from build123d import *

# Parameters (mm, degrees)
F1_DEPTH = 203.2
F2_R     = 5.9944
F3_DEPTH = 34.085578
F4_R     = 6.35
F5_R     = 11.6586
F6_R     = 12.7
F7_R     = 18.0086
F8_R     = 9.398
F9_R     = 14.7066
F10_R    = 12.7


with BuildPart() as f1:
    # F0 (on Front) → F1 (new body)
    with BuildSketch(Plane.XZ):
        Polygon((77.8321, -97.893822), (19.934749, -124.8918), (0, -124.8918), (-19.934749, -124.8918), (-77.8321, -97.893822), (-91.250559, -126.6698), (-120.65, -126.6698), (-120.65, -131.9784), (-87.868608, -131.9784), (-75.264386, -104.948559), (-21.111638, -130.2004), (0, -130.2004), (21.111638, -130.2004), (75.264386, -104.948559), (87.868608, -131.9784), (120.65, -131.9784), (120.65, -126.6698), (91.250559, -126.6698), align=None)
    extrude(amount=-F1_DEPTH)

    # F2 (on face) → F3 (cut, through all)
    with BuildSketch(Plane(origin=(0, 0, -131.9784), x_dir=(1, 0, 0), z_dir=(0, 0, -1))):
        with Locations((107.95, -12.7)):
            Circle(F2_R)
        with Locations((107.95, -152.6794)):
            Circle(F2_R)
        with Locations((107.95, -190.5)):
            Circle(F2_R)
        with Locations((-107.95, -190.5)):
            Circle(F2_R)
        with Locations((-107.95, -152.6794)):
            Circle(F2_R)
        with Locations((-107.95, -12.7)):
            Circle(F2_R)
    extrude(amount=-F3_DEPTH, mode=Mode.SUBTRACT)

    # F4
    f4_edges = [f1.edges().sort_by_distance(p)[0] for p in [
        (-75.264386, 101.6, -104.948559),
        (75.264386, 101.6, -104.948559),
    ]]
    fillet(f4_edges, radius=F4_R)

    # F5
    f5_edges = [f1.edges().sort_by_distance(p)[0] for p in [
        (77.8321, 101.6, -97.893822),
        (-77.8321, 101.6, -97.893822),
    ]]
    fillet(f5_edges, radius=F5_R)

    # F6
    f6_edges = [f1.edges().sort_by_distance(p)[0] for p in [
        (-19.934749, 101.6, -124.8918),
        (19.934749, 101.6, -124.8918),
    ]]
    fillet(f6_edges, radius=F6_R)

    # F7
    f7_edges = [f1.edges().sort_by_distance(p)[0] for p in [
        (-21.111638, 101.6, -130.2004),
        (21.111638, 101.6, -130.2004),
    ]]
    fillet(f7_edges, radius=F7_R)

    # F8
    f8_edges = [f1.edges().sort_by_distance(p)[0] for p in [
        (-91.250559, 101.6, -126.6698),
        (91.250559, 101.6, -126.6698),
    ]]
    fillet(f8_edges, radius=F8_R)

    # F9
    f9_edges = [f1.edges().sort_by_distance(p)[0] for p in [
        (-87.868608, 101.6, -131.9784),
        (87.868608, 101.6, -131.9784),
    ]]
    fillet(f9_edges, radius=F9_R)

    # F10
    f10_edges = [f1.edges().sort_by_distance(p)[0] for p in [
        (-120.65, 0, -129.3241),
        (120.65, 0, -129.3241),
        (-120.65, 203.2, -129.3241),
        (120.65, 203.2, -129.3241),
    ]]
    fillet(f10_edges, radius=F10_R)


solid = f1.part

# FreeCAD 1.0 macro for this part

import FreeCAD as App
import Part
import Sketcher
Q = App.Units.Quantity


def edges_at(feature, points):
    """Names of the edges that pass closest to the given points."""
    edges = feature.Shape.Edges
    near = lambda p: min(range(len(edges)), key=lambda i: edges[i].distToShape(Part.Vertex(*p))[0])
    return sorted({f"Edge{near(p) + 1}" for p in points})

doc = App.newDocument("Part")
body = doc.addObject("PartDesign::Body", "Body")

sketch1 = body.newObject("Sketcher::SketchObject", "Sketch")
sketch1.AttachmentSupport = (doc.getObject("XZ_Plane"), [""])
sketch1.MapMode = "FlatFace"
sketch1.addGeometry(Part.LineSegment(App.Vector(78, -98, 0), App.Vector(20, -125, 0)), False)
sketch1.addGeometry(Part.LineSegment(App.Vector(20, -125, 0), App.Vector(-20, -125, 0)), False)
sketch1.addGeometry(Part.LineSegment(App.Vector(-20, -125, 0), App.Vector(-78, -98, 0)), False)
sketch1.addGeometry(Part.LineSegment(App.Vector(-78, -98, 0), App.Vector(-91, -127, 0)), False)
sketch1.addGeometry(Part.LineSegment(App.Vector(-91, -127, 0), App.Vector(-121, -127, 0)), False)
sketch1.addGeometry(Part.LineSegment(App.Vector(-121, -127, 0), App.Vector(-121, -132, 0)), False)
sketch1.addGeometry(Part.LineSegment(App.Vector(-121, -132, 0), App.Vector(-88, -132, 0)), False)
sketch1.addGeometry(Part.LineSegment(App.Vector(-88, -132, 0), App.Vector(-75, -105, 0)), False)
sketch1.addGeometry(Part.LineSegment(App.Vector(-75, -105, 0), App.Vector(-21, -130, 0)), False)
sketch1.addGeometry(Part.LineSegment(App.Vector(-21, -130, 0), App.Vector(21, -130, 0)), False)
sketch1.addGeometry(Part.LineSegment(App.Vector(21, -130, 0), App.Vector(75, -105, 0)), False)
sketch1.addGeometry(Part.LineSegment(App.Vector(75, -105, 0), App.Vector(88, -132, 0)), False)
sketch1.addGeometry(Part.LineSegment(App.Vector(88, -132, 0), App.Vector(121, -132, 0)), False)
sketch1.addGeometry(Part.LineSegment(App.Vector(121, -132, 0), App.Vector(121, -127, 0)), False)
sketch1.addGeometry(Part.LineSegment(App.Vector(121, -127, 0), App.Vector(91, -127, 0)), False)
sketch1.addGeometry(Part.LineSegment(App.Vector(91, -127, 0), App.Vector(78, -98, 0)), False)
sketch1.addConstraint(Sketcher.Constraint("Coincident", 0, 2, 1, 1))
sketch1.addConstraint(Sketcher.Constraint("Coincident", 1, 2, 2, 1))
sketch1.addConstraint(Sketcher.Constraint("Coincident", 2, 2, 3, 1))
sketch1.addConstraint(Sketcher.Constraint("Coincident", 3, 2, 4, 1))
sketch1.addConstraint(Sketcher.Constraint("Coincident", 4, 2, 5, 1))
sketch1.addConstraint(Sketcher.Constraint("Coincident", 5, 2, 6, 1))
sketch1.addConstraint(Sketcher.Constraint("Coincident", 6, 2, 7, 1))
sketch1.addConstraint(Sketcher.Constraint("Coincident", 7, 2, 8, 1))
sketch1.addConstraint(Sketcher.Constraint("Coincident", 8, 2, 9, 1))
sketch1.addConstraint(Sketcher.Constraint("Coincident", 9, 2, 10, 1))
sketch1.addConstraint(Sketcher.Constraint("Coincident", 10, 2, 11, 1))
sketch1.addConstraint(Sketcher.Constraint("Coincident", 11, 2, 12, 1))
sketch1.addConstraint(Sketcher.Constraint("Coincident", 12, 2, 13, 1))
sketch1.addConstraint(Sketcher.Constraint("Coincident", 13, 2, 14, 1))
sketch1.addConstraint(Sketcher.Constraint("Coincident", 14, 2, 15, 1))
sketch1.addConstraint(Sketcher.Constraint("Coincident", 15, 2, 0, 1))
sketch1.addConstraint(Sketcher.Constraint("Horizontal", 1))
sketch1.addConstraint(Sketcher.Constraint("Horizontal", 4))
sketch1.addConstraint(Sketcher.Constraint("Vertical", 5))
sketch1.addConstraint(Sketcher.Constraint("Horizontal", 6))
sketch1.addConstraint(Sketcher.Constraint("Horizontal", 9))
sketch1.addConstraint(Sketcher.Constraint("Horizontal", 12))
sketch1.addConstraint(Sketcher.Constraint("Vertical", 13))
sketch1.addConstraint(Sketcher.Constraint("Horizontal", 14))
sketch1.addConstraint(Sketcher.Constraint("Symmetric", 7, 2, 10, 2, -2))
sketch1.addConstraint(Sketcher.Constraint("Symmetric", 6, 2, 11, 2, -2))
sketch1.addConstraint(Sketcher.Constraint("Symmetric", 4, 2, 13, 2, -2))
sketch1.addConstraint(Sketcher.Constraint("Symmetric", 2, 2, 15, 2, -2))
sketch1.addConstraint(Sketcher.Constraint("Perpendicular", 2, 3))
sketch1.addConstraint(Sketcher.Constraint("Parallel", 3, 7))
sketch1.addConstraint(Sketcher.Constraint("Perpendicular", 7, 8))
sketch1.addConstraint(Sketcher.Constraint("Parallel", 0, 10))
sketch1.addConstraint(Sketcher.Constraint("Perpendicular", 10, 11))
sketch1.addConstraint(Sketcher.Constraint("Parallel", 11, 15))
sketch1.addConstraint(Sketcher.Constraint("Angle", 0, Q("-155 deg")))
sketch1.addConstraint(Sketcher.Constraint("DistanceY", 5, 2, 5, 1, Q("0.209 in")))
sketch1.addConstraint(Sketcher.Constraint("DistanceX", 4, 2, -1, 1, Q("4.75 in")))
sketch1.addConstraint(Sketcher.Constraint("DistanceY", 3, 2, 1, 2, Q("0.07 in")))
sketch1.addConstraint(Sketcher.Constraint("DistanceY", 6, 2, 8, 2, Q("0.07 in")))
sketch1.addConstraint(Sketcher.Constraint("DistanceY", 0, 2, -1, 1, Q("4.917 in")))
sketch1.addConstraint(Sketcher.Constraint("DistanceX", 4, 2, 4, 1, 29.399441))
sketch1.addConstraint(Sketcher.Constraint("DistanceX", 2, 2, -1, 1, 77.8321))
sketch1.addConstraint(Sketcher.Constraint("Distance", 7, 29.82413))
sketch1.addConstraint(Sketcher.Constraint("DistanceX", 6, 1, 6, 2, 32.781392))
pad1 = body.newObject("PartDesign::Pad", "Pad")
pad1.Profile = sketch1
pad1.Length = Q("8 in")
pad1.Reversed = True

sketch2 = body.newObject("Sketcher::SketchObject", "Sketch001")
sketch2.AttachmentSupport = (doc.getObject("XY_Plane"), [""])
sketch2.MapMode = "FlatFace"
sketch2.AttachmentOffset = App.Placement(App.Vector(0, 0, -5.196 * 25.4), App.Rotation())
sketch2.addGeometry(Part.Circle(App.Vector(108, 13, 0), App.Vector(0, 0, 1), 6), False)
sketch2.addGeometry(Part.Circle(App.Vector(108, 153, 0), App.Vector(0, 0, 1), 6), False)
sketch2.addGeometry(Part.Circle(App.Vector(108, 190, 0), App.Vector(0, 0, 1), 6), False)
sketch2.addGeometry(Part.Circle(App.Vector(-108, 190, 0), App.Vector(0, 0, 1), 6), False)
sketch2.addGeometry(Part.Circle(App.Vector(-108, 153, 0), App.Vector(0, 0, 1), 6), False)
sketch2.addGeometry(Part.Circle(App.Vector(-108, 13, 0), App.Vector(0, 0, 1), 6), False)
sketch2.addConstraint(Sketcher.Constraint("Equal", 0, 1))
sketch2.addConstraint(Sketcher.Constraint("Equal", 1, 2))
sketch2.addConstraint(Sketcher.Constraint("Equal", 2, 3))
sketch2.addConstraint(Sketcher.Constraint("Equal", 3, 4))
sketch2.addConstraint(Sketcher.Constraint("Equal", 4, 5))
sketch2.addConstraint(Sketcher.Constraint("Symmetric", 2, 3, 3, 3, -2))
sketch2.addConstraint(Sketcher.Constraint("Symmetric", 1, 3, 4, 3, -2))
sketch2.addConstraint(Sketcher.Constraint("Symmetric", 0, 3, 5, 3, -2))
sketch2.addConstraint(Sketcher.Constraint("Vertical", 0, 3, 1, 3))
sketch2.addConstraint(Sketcher.Constraint("Vertical", 1, 3, 2, 3))
sketch2.addConstraint(Sketcher.Constraint("Diameter", 0, Q("0.472 in")))
sketch2.addConstraint(Sketcher.Constraint("DistanceY", 0, 3, 2, 3, Q("7 in")))
sketch2.addConstraint(Sketcher.Constraint("DistanceY", -1, 1, 0, 3, Q("0.5 in")))
sketch2.addConstraint(Sketcher.Constraint("DistanceX", 3, 3, 2, 3, Q("8.5 in")))
sketch2.addConstraint(Sketcher.Constraint("DistanceY", -1, 1, 1, 3, Q("6.011 in")))
pocket1 = body.newObject("PartDesign::Pocket", "Pocket")
pocket1.Profile = sketch2
pocket1.Type = "ThroughAll"
pocket1.Reversed = True
doc.recompute()

fillet = body.newObject("PartDesign::Fillet", "Fillet")
fillet.Base = (pocket1, edges_at(pocket1, [(-75.264, 101.6, -104.949), (75.264, 101.6, -104.949)]))
fillet.Radius = Q("0.25 in")
doc.recompute()

fillet2 = body.newObject("PartDesign::Fillet", "Fillet001")
fillet2.Base = (fillet, edges_at(fillet, [(77.832, 101.6, -97.894), (-77.832, 101.6, -97.894)]))
fillet2.Radius = Q("0.459 in")
doc.recompute()

fillet3 = body.newObject("PartDesign::Fillet", "Fillet002")
fillet3.Base = (fillet2, edges_at(fillet2, [(-19.935, 101.6, -124.892), (19.935, 101.6, -124.892)]))
fillet3.Radius = Q("0.5 in")
doc.recompute()

fillet4 = body.newObject("PartDesign::Fillet", "Fillet003")
fillet4.Base = (fillet3, edges_at(fillet3, [(-21.112, 101.6, -130.2), (21.112, 101.6, -130.2)]))
fillet4.Radius = Q("0.709 in")
doc.recompute()

fillet5 = body.newObject("PartDesign::Fillet", "Fillet004")
fillet5.Base = (fillet4, edges_at(fillet4, [(-91.251, 101.6, -126.67), (91.251, 101.6, -126.67)]))
fillet5.Radius = Q("0.37 in")
doc.recompute()

fillet6 = body.newObject("PartDesign::Fillet", "Fillet005")
fillet6.Base = (fillet5, edges_at(fillet5, [(-87.869, 101.6, -131.978), (87.869, 101.6, -131.978)]))
fillet6.Radius = Q("0.579 in")
doc.recompute()

fillet7 = body.newObject("PartDesign::Fillet", "Fillet006")
fillet7.Base = (fillet6, edges_at(fillet6, [
    (-120.65, 0, -129.324),
    (120.65, 0, -129.324),
    (-120.65, 203.2, -129.324),
    (120.65, 203.2, -129.324),
]))
fillet7.Radius = Q("0.5 in")

doc.recompute()
